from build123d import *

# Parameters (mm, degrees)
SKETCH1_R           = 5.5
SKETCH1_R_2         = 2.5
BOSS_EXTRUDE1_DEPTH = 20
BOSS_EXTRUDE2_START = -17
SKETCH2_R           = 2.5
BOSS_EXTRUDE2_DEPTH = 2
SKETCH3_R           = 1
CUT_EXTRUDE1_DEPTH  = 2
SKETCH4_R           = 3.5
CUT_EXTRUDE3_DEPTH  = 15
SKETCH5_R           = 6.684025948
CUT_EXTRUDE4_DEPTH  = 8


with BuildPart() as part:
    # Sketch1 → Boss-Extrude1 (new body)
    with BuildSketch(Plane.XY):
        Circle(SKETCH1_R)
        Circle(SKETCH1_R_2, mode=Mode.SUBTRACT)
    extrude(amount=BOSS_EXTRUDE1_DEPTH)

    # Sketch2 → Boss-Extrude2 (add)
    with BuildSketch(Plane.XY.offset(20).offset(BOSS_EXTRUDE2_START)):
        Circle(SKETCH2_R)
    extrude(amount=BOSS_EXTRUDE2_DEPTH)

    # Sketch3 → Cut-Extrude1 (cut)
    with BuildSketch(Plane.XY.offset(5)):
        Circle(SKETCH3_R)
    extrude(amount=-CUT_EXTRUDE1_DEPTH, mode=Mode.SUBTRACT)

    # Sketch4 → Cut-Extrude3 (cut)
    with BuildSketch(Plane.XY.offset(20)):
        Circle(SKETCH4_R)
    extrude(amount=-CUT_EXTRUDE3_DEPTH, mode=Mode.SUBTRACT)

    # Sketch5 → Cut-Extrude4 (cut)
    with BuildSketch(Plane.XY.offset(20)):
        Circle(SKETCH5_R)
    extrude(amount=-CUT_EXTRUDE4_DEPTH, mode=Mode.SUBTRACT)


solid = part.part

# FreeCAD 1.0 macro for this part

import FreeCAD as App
import Part
import Sketcher

doc = App.newDocument("Part")
params = doc.addObject("Spreadsheet::Sheet", "Params")
for row, (alias, value) in enumerate([
    ("sketch1_diameter", "11 mm"),
    ("sketch1_diameter2", "5 mm"),
    ("pad1_length", "20 mm"),
    ("sketch2_diameter", "5 mm"),
    ("pad2_length", "2 mm"),
    ("sketch3_diameter", "2 mm"),
    ("pocket1_length", "2 mm"),
    ("sketch4_diameter", "7 mm"),
    ("pocket2_length", "15 mm"),
    ("pocket3_length", "8 mm"),
], start=1):
    params.set(f"A{row}", alias)
    params.set(f"B{row}", "=" + value)
    params.setAlias(f"B{row}", alias)

body = doc.addObject("PartDesign::Body", "Body")

sketch1 = body.newObject("Sketcher::SketchObject", "Sketch")
sketch1.AttachmentSupport = (doc.getObject("XY_Plane"), [""])
sketch1.MapMode = "FlatFace"
sketch1.addGeometry([
    Part.Circle(App.Vector(0, 0, 0), App.Vector(0, 0, 1), 5.5),
    Part.Circle(App.Vector(0, 0, 0), App.Vector(0, 0, 1), 2.5),
], False)
sketch1.addConstraint([
    Sketcher.Constraint("Coincident", 0, 3, -1, 1),
    Sketcher.Constraint("Coincident", 1, 3, -1, 1),
    Sketcher.Constraint("Diameter", 0, 11.0),
    Sketcher.Constraint("Diameter", 1, 5.0),
])
sketch1.setExpression("Constraints[2]", "Params.sketch1_diameter")
sketch1.setExpression("Constraints[3]", "Params.sketch1_diameter2")
pad1 = body.newObject("PartDesign::Pad", "Pad")
pad1.Profile = sketch1
pad1.setExpression("Length", "Params.pad1_length")

sketch2 = body.newObject("Sketcher::SketchObject", "Sketch001")
sketch2.AttachmentSupport = (doc.getObject("XY_Plane"), [""])
sketch2.MapMode = "FlatFace"
sketch2.AttachmentOffset = App.Placement(App.Vector(0, 0, 3), App.Rotation())
sketch2.addGeometry(Part.Circle(App.Vector(0, 0, 0), App.Vector(0, 0, 1), 2.5), False)
sketch2.addConstraint([
    Sketcher.Constraint("Coincident", 0, 3, -1, 1),
    Sketcher.Constraint("Diameter", 0, 5.0),
])
sketch2.setExpression("Constraints[1]", "Params.sketch2_diameter")
pad2 = body.newObject("PartDesign::Pad", "Pad001")
pad2.Profile = sketch2
pad2.setExpression("Length", "Params.pad2_length")

sketch3 = body.newObject("Sketcher::SketchObject", "Sketch002")
sketch3.AttachmentSupport = (doc.getObject("XY_Plane"), [""])
sketch3.MapMode = "FlatFace"
sketch3.AttachmentOffset = App.Placement(App.Vector(0, 0, 5), App.Rotation())
sketch3.addGeometry(Part.Circle(App.Vector(0, 0, 0), App.Vector(0, 0, 1), 1), False)
sketch3.addConstraint([
    Sketcher.Constraint("Coincident", 0, 3, -1, 1),
    Sketcher.Constraint("Diameter", 0, 2.0),
])
sketch3.setExpression("Constraints[1]", "Params.sketch3_diameter")
pocket1 = body.newObject("PartDesign::Pocket", "Pocket")
pocket1.Profile = sketch3
pocket1.setExpression("Length", "Params.pocket1_length")

sketch4 = body.newObject("Sketcher::SketchObject", "Sketch003")
sketch4.AttachmentSupport = (doc.getObject("XY_Plane"), [""])
sketch4.MapMode = "FlatFace"
sketch4.AttachmentOffset = App.Placement(App.Vector(0, 0, 20), App.Rotation())
sketch4.addGeometry(Part.Circle(App.Vector(0, 0, 0), App.Vector(0, 0, 1), 3.5), False)
sketch4.addConstraint([
    Sketcher.Constraint("Coincident", 0, 3, -1, 1),
    Sketcher.Constraint("Diameter", 0, 7.0),
])
sketch4.setExpression("Constraints[1]", "Params.sketch4_diameter")
pocket2 = body.newObject("PartDesign::Pocket", "Pocket001")
pocket2.Profile = sketch4
pocket2.setExpression("Length", "Params.pocket2_length")

sketch5 = body.newObject("Sketcher::SketchObject", "Sketch004")
sketch5.AttachmentSupport = (doc.getObject("XY_Plane"), [""])
sketch5.MapMode = "FlatFace"
sketch5.AttachmentOffset = App.Placement(App.Vector(0, 0, 20), App.Rotation())
sketch5.addGeometry(Part.Circle(App.Vector(0, 0, 0), App.Vector(0, 0, 1), 6.684026), False)
sketch5.addConstraint([
    Sketcher.Constraint("Coincident", 0, 3, -1, 1),
    Sketcher.Constraint("Diameter", 0, 13.368052),
])
pocket3 = body.newObject("PartDesign::Pocket", "Pocket002")
pocket3.Profile = sketch5
pocket3.setExpression("Length", "Params.pocket3_length")

doc.recompute()
